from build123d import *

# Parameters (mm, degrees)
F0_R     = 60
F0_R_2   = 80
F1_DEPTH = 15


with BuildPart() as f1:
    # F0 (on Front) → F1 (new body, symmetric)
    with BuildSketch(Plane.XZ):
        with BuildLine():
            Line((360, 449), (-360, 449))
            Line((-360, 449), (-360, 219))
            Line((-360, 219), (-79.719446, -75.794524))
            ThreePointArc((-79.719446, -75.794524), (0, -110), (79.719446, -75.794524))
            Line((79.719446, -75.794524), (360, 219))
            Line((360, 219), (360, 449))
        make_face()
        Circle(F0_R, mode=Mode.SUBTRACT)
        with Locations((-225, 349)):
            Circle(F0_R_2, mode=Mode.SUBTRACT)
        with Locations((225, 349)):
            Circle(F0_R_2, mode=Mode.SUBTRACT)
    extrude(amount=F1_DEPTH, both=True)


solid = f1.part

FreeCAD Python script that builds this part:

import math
import FreeCAD as App
import Part
import Sketcher
from FreeCAD import Vector

doc = App.newDocument("Part")
body = doc.addObject("PartDesign::Body", "Body")

sketch1 = body.newObject("Sketcher::SketchObject", "Sketch")
sketch1.AttachmentSupport = (doc.getObject("XZ_Plane"), [""])
sketch1.MapMode = "FlatFace"
sketch1.addGeometry([
    Part.LineSegment(Vector(360, 449, 0), Vector(-360, 449, 0)),
    Part.LineSegment(Vector(-360, 449, 0), Vector(-360, 219, 0)),
    Part.LineSegment(Vector(-360, 219, 0), Vector(-80, -76, 0)),
    Part.ArcOfCircle(Part.Circle(Vector(0, 0, 0), Vector(0, 0, 1), 110), math.radians(-136), math.radians(-44)),
    Part.LineSegment(Vector(80, -76, 0), Vector(360, 219, 0)),
    Part.LineSegment(Vector(360, 219, 0), Vector(360, 449, 0)),
    Part.Circle(Vector(0, 0, 0), Vector(0, 0, 1), 60),
    Part.Circle(Vector(-225, 349, 0), Vector(0, 0, 1), 80),
    Part.Circle(Vector(225, 349, 0), Vector(0, 0, 1), 80),
], False)
sketch1.addConstraint([
    Sketcher.Constraint("Coincident", 0, 2, 1, 1),
    Sketcher.Constraint("Coincident", 1, 2, 2, 1),
    Sketcher.Constraint("Tangent", 2, 2, 3, 1),
    Sketcher.Constraint("Tangent", 3, 2, 4, 1),
    Sketcher.Constraint("Coincident", 4, 2, 5, 1),
    Sketcher.Constraint("Coincident", 5, 2, 0, 1),
    Sketcher.Constraint("Horizontal", 0),
    Sketcher.Constraint("Vertical", 1),
    Sketcher.Constraint("Vertical", 5),
    Sketcher.Constraint("Coincident", 3, 3, -1, 1),
    Sketcher.Constraint("Coincident", 6, 3, -1, 1),
    Sketcher.Constraint("Equal", 7, 8),
    Sketcher.Constraint("Symmetric", 7, 3, 8, 3, -2),
    Sketcher.Constraint("Symmetric", 1, 2, 4, 2, -2),
    Sketcher.Constraint("Diameter", 6, 120.0),
    Sketcher.Constraint("Diameter", 7, 160.0),
    Sketcher.Constraint("Radius", 3, 109.999999),
    Sketcher.Constraint("DistanceX", 0, 2, 0, 1, 720.0),
    Sketcher.Constraint("DistanceY", 1, 2, 1, 1, 230.0),
    Sketcher.Constraint("DistanceX", 7, 3, -1, 1, 225.0),
    Sketcher.Constraint("DistanceY", -1, 1, 7, 3, 349.0),
    Sketcher.Constraint("DistanceY", -1, 1, 0, 2, 449.0),
])
pad1 = body.newObject("PartDesign::Pad", "Pad")
pad1.Profile = sketch1
pad1.Length = 30
pad1.Midplane = True

doc.recompute()
